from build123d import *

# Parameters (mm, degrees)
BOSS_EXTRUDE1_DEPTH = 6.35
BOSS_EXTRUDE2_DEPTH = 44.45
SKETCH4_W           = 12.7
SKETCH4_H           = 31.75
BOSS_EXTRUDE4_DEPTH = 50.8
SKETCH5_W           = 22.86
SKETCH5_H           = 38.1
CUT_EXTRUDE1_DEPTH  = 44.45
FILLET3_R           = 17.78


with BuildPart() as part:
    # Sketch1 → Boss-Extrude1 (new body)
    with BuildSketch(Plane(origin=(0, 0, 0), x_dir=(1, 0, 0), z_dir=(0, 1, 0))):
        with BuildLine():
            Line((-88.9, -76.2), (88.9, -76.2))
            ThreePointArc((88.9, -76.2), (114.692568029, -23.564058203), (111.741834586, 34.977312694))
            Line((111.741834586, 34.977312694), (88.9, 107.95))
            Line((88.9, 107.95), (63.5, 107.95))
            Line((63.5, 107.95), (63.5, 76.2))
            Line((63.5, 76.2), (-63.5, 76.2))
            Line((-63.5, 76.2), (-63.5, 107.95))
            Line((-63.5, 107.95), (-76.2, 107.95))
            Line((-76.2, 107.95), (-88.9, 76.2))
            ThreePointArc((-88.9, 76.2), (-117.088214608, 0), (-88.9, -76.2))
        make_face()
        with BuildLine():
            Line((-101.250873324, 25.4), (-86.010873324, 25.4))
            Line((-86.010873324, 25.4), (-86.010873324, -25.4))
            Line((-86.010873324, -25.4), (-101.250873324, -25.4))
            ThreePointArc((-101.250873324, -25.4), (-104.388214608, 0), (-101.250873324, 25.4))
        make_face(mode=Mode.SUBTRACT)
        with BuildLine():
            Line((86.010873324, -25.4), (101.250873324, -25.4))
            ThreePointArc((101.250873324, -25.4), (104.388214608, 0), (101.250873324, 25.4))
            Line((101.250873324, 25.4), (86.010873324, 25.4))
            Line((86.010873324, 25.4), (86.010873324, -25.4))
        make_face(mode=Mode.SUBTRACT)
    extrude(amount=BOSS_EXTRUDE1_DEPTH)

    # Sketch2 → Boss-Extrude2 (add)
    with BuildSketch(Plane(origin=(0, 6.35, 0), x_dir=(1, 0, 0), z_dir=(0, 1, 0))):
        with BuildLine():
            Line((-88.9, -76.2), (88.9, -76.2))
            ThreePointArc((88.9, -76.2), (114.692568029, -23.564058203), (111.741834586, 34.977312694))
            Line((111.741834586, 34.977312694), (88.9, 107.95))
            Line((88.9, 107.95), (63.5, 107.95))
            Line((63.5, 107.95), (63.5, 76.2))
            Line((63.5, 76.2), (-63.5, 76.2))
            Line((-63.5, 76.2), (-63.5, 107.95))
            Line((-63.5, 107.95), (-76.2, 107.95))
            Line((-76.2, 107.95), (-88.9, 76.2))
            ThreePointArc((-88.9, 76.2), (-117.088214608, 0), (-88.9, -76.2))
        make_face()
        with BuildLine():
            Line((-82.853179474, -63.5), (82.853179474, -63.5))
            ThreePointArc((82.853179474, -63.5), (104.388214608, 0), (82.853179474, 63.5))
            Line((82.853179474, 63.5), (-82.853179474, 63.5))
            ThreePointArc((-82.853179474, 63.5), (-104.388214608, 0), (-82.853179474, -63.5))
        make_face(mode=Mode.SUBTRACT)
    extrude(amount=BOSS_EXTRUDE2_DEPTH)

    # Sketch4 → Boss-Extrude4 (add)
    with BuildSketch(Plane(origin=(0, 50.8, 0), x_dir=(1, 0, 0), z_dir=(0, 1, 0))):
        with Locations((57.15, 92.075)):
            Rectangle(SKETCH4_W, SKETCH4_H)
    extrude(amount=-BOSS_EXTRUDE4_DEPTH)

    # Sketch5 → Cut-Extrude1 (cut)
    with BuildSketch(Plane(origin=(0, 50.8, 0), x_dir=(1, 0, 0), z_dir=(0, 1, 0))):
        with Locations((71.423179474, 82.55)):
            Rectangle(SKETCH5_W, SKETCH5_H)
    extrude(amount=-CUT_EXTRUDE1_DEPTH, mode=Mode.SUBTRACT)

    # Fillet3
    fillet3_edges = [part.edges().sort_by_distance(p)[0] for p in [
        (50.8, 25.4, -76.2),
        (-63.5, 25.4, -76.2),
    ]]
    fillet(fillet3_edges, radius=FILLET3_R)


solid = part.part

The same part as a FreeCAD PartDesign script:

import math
import FreeCAD as App
import Part
import Sketcher
from FreeCAD import Vector
Q = App.Units.Quantity


def edges_at(feature, points):
    """Names of the edges that pass closest to the given points."""
    edges = feature.Shape.Edges
    near = lambda p: min(range(len(edges)), key=lambda i: edges[i].distToShape(Part.Vertex(*p))[0])
    return sorted({f"Edge{near(p) + 1}" for p in points})


def add_polygon(sketch, points):
    """Adds a closed chain of lines whose ends are joined by coincident constraints."""
    first, n = sketch.GeometryCount, len(points)
    for a, b in zip(points, points[1:] + points[:1]):
        sketch.addGeometry(Part.LineSegment(App.Vector(*a, 0), App.Vector(*b, 0)), False)
    for i in range(n):
        sketch.addConstraint(Sketcher.Constraint("Coincident", first + i, 2, first + (i + 1) % n, 1))

doc = App.newDocument("Part")
body = doc.addObject("PartDesign::Body", "Body")

# Sketch on XZ plane
sketch1 = body.newObject("Sketcher::SketchObject", "Sketch")
sketch1.AttachmentSupport = (doc.getObject("XZ_Plane"), [""])
sketch1.MapMode = "FlatFace"
sketch1.addGeometry([
    Part.LineSegment(Vector(-89, 76, 0), Vector(89, 76, 0)),  # 0
    Part.ArcOfCircle(Part.Circle(Vector(0, 0, 0), Vector(0, 0, 1), 117), math.radians(-17), math.radians(41)),  # 1
    Part.LineSegment(Vector(112, -35, 0), Vector(89, -108, 0)),  # 2
    Part.LineSegment(Vector(89, -108, 0), Vector(64, -108, 0)),  # 3
    Part.LineSegment(Vector(64, -108, 0), Vector(64, -76, 0)),  # 4
    Part.LineSegment(Vector(64, -76, 0), Vector(-64, -76, 0)),  # 5
    Part.LineSegment(Vector(-64, -76, 0), Vector(-64, -108, 0)),  # 6
    Part.LineSegment(Vector(-64, -108, 0), Vector(-76, -108, 0)),  # 7
    Part.LineSegment(Vector(-76, -108, 0), Vector(-89, -76, 0)),  # 8
    Part.ArcOfCircle(Part.Circle(Vector(0, 0, 0), Vector(0, 0, 1), 117), math.radians(139), math.radians(221)),  # 9
    Part.ArcOfCircle(Part.Circle(Vector(0, 0, 0), Vector(0, 0, 1), 104), math.radians(166), math.radians(194)),  # 10
    Part.LineSegment(Vector(-101, -25, 0), Vector(-86, -25, 0)),  # 11
    Part.LineSegment(Vector(-86, -25, 0), Vector(-86, 25, 0)),  # 12
    Part.LineSegment(Vector(-86, 25, 0), Vector(-101, 25, 0)),  # 13
    Part.LineSegment(Vector(101, 25, 0), Vector(86, 25, 0)),  # 14
    Part.LineSegment(Vector(86, 25, 0), Vector(86, -25, 0)),  # 15
    Part.LineSegment(Vector(86, -25, 0), Vector(101, -25, 0)),  # 16
    Part.ArcOfCircle(Part.Circle(Vector(0, 0, 0), Vector(0, 0, 1), 104), math.radians(-14), math.radians(14)),  # 17
], False)
sketch1.addConstraint([
    Sketcher.Constraint("Coincident", 0, 2, 1, 2),
    Sketcher.Constraint("Tangent", 1, 1, 2, 1),
    Sketcher.Constraint("Coincident", 2, 2, 3, 1),
    Sketcher.Constraint("Coincident", 3, 2, 4, 1),
    Sketcher.Constraint("Coincident", 4, 2, 5, 1),
    Sketcher.Constraint("Coincident", 5, 2, 6, 1),
    Sketcher.Constraint("Coincident", 6, 2, 7, 1),
    Sketcher.Constraint("Coincident", 7, 2, 8, 1),
    Sketcher.Constraint("Coincident", 8, 2, 9, 2),
    Sketcher.Constraint("Coincident", 9, 1, 0, 1),
    Sketcher.Constraint("Coincident", 10, 2, 11, 1),
    Sketcher.Constraint("Coincident", 11, 2, 12, 1),
    Sketcher.Constraint("Coincident", 12, 2, 13, 1),
    Sketcher.Constraint("Coincident", 13, 2, 10, 1),
    Sketcher.Constraint("Coincident", 14, 2, 15, 1),
    Sketcher.Constraint("Coincident", 15, 2, 16, 1),
    Sketcher.Constraint("Coincident", 16, 2, 17, 1),
    Sketcher.Constraint("Coincident", 17, 2, 14, 1),
    Sketcher.Constraint("Horizontal", 0),
    Sketcher.Constraint("Horizontal", 3),
    Sketcher.Constraint("Vertical", 4),
    Sketcher.Constraint("Horizontal", 5),
    Sketcher.Constraint("Vertical", 6),
    Sketcher.Constraint("Horizontal", 7),
    Sketcher.Constraint("Horizontal", 11),
    Sketcher.Constraint("Vertical", 12),
    Sketcher.Constraint("Horizontal", 13),
    Sketcher.Constraint("Horizontal", 14),
    Sketcher.Constraint("Vertical", 15),
    Sketcher.Constraint("Horizontal", 16),
    Sketcher.Constraint("Coincident", 1, 3, -1, 1),
    Sketcher.Constraint("Coincident", 9, 3, -1, 1),
    Sketcher.Constraint("Coincident", 10, 3, -1, 1),
    Sketcher.Constraint("Coincident", 17, 3, -1, 1),
    Sketcher.Constraint("Equal", 1, 9),
    Sketcher.Constraint("Equal", 10, 17),
    Sketcher.Constraint("Symmetric", 11, 2, 14, 2, -1, 1),
    Sketcher.Constraint("Symmetric", 3, 2, 6, 2, -2),
    Sketcher.Constraint("Horizontal", 5, 2, 8, 2),
    Sketcher.Constraint("Horizontal", 13, 2, 14, 2),
    Sketcher.Constraint("Horizontal", 11, 2, 15, 2),
    Sketcher.Constraint("Vertical", 0, 2, 2, 2),
    Sketcher.Constraint("Vertical", 8, 2, 9, 1),
    Sketcher.Constraint("DistanceX", 0, 1, 0, 2, Q("7 in")),
    Sketcher.Constraint("DistanceX", 3, 2, 3, 1, Q("1 in")),
    Sketcher.Constraint("DistanceY", 12, 1, 12, 2, Q("2 in")),
    Sketcher.Constraint("DistanceX", 7, 2, 7, 1, Q("0.5 in")),
    Sketcher.Constraint("DistanceX", 11, 1, 11, 2, Q("0.6 in")),
    Sketcher.Constraint("DistanceY", -1, 1, 0, 2, Q("3 in")),
    Sketcher.Constraint("DistanceY", 4, 1, 4, 2, Q("1.25 in")),
    Sketcher.Constraint("Radius", 10, 104.388215),
])
pad1 = body.newObject("PartDesign::Pad", "Pad")
pad1.Profile = sketch1
pad1.Length = Q("0.25 in")
pad1.Reversed = True

# Sketch on XZ plane
sketch2 = body.newObject("Sketcher::SketchObject", "Sketch001")
sketch2.AttachmentSupport = (doc.getObject("XZ_Plane"), [""])
sketch2.MapMode = "FlatFace"
sketch2.AttachmentOffset = App.Placement(Vector(0, 0, -0.25 * 25.4), App.Rotation())
sketch2.addGeometry([
    Part.LineSegment(Vector(-89, 76, 0), Vector(89, 76, 0)),  # 0
    Part.ArcOfCircle(Part.Circle(Vector(0, 0, 0), Vector(0, 0, 1), 117), math.radians(-17), math.radians(41)),  # 1
    Part.LineSegment(Vector(112, -35, 0), Vector(89, -108, 0)),  # 2
    Part.LineSegment(Vector(89, -108, 0), Vector(64, -108, 0)),  # 3
    Part.LineSegment(Vector(64, -108, 0), Vector(64, -76, 0)),  # 4
    Part.LineSegment(Vector(64, -76, 0), Vector(-64, -76, 0)),  # 5
    Part.LineSegment(Vector(-64, -76, 0), Vector(-64, -108, 0)),  # 6
    Part.LineSegment(Vector(-64, -108, 0), Vector(-76, -108, 0)),  # 7
    Part.LineSegment(Vector(-76, -108, 0), Vector(-89, -76, 0)),  # 8
    Part.ArcOfCircle(Part.Circle(Vector(0, 0, 0), Vector(0, 0, 1), 117), math.radians(139), math.radians(221)),  # 9
    Part.LineSegment(Vector(83, 64, 0), Vector(-83, 64, 0)),  # 10
    Part.ArcOfCircle(Part.Circle(Vector(0, 0, 0), Vector(0, 0, 1), 104), math.radians(143), math.radians(217)),  # 11
    Part.LineSegment(Vector(-83, -64, 0), Vector(83, -64, 0)),  # 12
    Part.ArcOfCircle(Part.Circle(Vector(0, 0, 0), Vector(0, 0, 1), 104), math.radians(-37), math.radians(37)),  # 13
], False)
sketch2.addConstraint([
    Sketcher.Constraint("Coincident", 0, 2, 1, 2),
    Sketcher.Constraint("Tangent", 1, 1, 2, 1),
    Sketcher.Constraint("Coincident", 2, 2, 3, 1),
    Sketcher.Constraint("Coincident", 3, 2, 4, 1),
    Sketcher.Constraint("Coincident", 4, 2, 5, 1),
    Sketcher.Constraint("Coincident", 5, 2, 6, 1),
    Sketcher.Constraint("Coincident", 6, 2, 7, 1),
    Sketcher.Constraint("Coincident", 7, 2, 8, 1),
    Sketcher.Constraint("Coincident", 8, 2, 9, 2),
    Sketcher.Constraint("Coincident", 9, 1, 0, 1),
    Sketcher.Constraint("Coincident", 10, 2, 11, 1),
    Sketcher.Constraint("Coincident", 11, 2, 12, 1),
    Sketcher.Constraint("Coincident", 12, 2, 13, 1),
    Sketcher.Constraint("Coincident", 13, 2, 10, 1),
    Sketcher.Constraint("Horizontal", 0),
    Sketcher.Constraint("Horizontal", 3),
    Sketcher.Constraint("Vertical", 4),
    Sketcher.Constraint("Horizontal", 5),
    Sketcher.Constraint("Vertical", 6),
    Sketcher.Constraint("Horizontal", 7),
    Sketcher.Constraint("Horizontal", 10),
    Sketcher.Constraint("Horizontal", 12),
    Sketcher.Constraint("Coincident", 1, 3, -1, 1),
    Sketcher.Constraint("Coincident", 9, 3, -1, 1),
    Sketcher.Constraint("Coincident", 11, 3, -1, 1),
    Sketcher.Constraint("Coincident", 13, 3, -1, 1),
    Sketcher.Constraint("Equal", 1, 9),
    Sketcher.Constraint("Equal", 11, 13),
    Sketcher.Constraint("Symmetric", 3, 2, 6, 2, -2),
    Sketcher.Constraint("Horizontal", 5, 2, 8, 2),
    Sketcher.Constraint("Vertical", 0, 2, 2, 2),
    Sketcher.Constraint("Vertical", 8, 2, 9, 1),
    Sketcher.Constraint("Vertical", 10, 2, 11, 2),
    Sketcher.Constraint("DistanceX", 0, 1, 0, 2, Q("7 in")),
    Sketcher.Constraint("DistanceX", 3, 2, 3, 1, Q("1 in")),
    Sketcher.Constraint("DistanceX", 7, 2, 7, 1, Q("0.5 in")),
    Sketcher.Constraint("DistanceY", -1, 1, 0, 2, Q("3 in")),
    Sketcher.Constraint("DistanceY", 4, 1, 4, 2, Q("1.25 in")),
    Sketcher.Constraint("DistanceY", -1, 1, 10, 2, Q("2.5 in")),
    Sketcher.Constraint("Radius", 11, 104.388215),
])
pad2 = body.newObject("PartDesign::Pad", "Pad001")
pad2.Profile = sketch2
pad2.Length = Q("1.75 in")
pad2.Reversed = True

# Sketch on XZ plane
sketch3 = body.newObject("Sketcher::SketchObject", "Sketch002")
sketch3.AttachmentSupport = (doc.getObject("XZ_Plane"), [""])
sketch3.MapMode = "FlatFace"
sketch3.AttachmentOffset = App.Placement(Vector(0, 0, -2 * 25.4), App.Rotation())
add_polygon(sketch3, [(51, -108), (51, -76), (64, -76), (64, -108)])  # lines 0-3
sketch3.addConstraint([
    Sketcher.Constraint("Vertical", 0),
    Sketcher.Constraint("Horizontal", 1),
    Sketcher.Constraint("Vertical", 2),
    Sketcher.Constraint("Horizontal", 3),
    Sketcher.Constraint("DistanceX", 1, 1, 1, 2, Q("0.5 in")),
    Sketcher.Constraint("DistanceX", -1, 1, 0, 2, Q("2 in")),
    Sketcher.Constraint("DistanceY", 0, 2, -1, 1, Q("3 in")),
    Sketcher.Constraint("DistanceY", 0, 1, 0, 2, Q("1.25 in")),
])
pad3 = body.newObject("PartDesign::Pad", "Pad002")
pad3.Profile = sketch3
pad3.Length = Q("2 in")

# Sketch on XZ plane
sketch4 = body.newObject("Sketcher::SketchObject", "Sketch003")
sketch4.AttachmentSupport = (doc.getObject("XZ_Plane"), [""])
sketch4.MapMode = "FlatFace"
sketch4.AttachmentOffset = App.Placement(Vector(0, 0, -2 * 25.4), App.Rotation())
add_polygon(sketch4, [(60, -102), (60, -64), (83, -64), (83, -102)])  # lines 0-3
sketch4.addConstraint([
    Sketcher.Constraint("Vertical", 0),
    Sketcher.Constraint("Horizontal", 1),
    Sketcher.Constraint("Vertical", 2),
    Sketcher.Constraint("Horizontal", 3),
    Sketcher.Constraint("DistanceX", 1, 1, 1, 2, Q("0.9 in")),
    Sketcher.Constraint("DistanceY", 0, 1, 0, 2, Q("1.5 in")),
    Sketcher.Constraint("DistanceY", 2, 2, -1, 1, Q("4 in")),
    Sketcher.Constraint("DistanceX", -1, 1, 0, 2, 59.993179),
])
pocket1 = body.newObject("PartDesign::Pocket", "Pocket")
pocket1.Profile = sketch4
pocket1.Length = Q("1.75 in")
pocket1.Reversed = True
doc.recompute()

fillet = body.newObject("PartDesign::Fillet", "Fillet")
fillet.Base = (pocket1, edges_at(pocket1, [(50.8, 25.4, -76.2), (-63.5, 25.4, -76.2)]))
fillet.Radius = Q("0.7 in")

doc.recompute()
